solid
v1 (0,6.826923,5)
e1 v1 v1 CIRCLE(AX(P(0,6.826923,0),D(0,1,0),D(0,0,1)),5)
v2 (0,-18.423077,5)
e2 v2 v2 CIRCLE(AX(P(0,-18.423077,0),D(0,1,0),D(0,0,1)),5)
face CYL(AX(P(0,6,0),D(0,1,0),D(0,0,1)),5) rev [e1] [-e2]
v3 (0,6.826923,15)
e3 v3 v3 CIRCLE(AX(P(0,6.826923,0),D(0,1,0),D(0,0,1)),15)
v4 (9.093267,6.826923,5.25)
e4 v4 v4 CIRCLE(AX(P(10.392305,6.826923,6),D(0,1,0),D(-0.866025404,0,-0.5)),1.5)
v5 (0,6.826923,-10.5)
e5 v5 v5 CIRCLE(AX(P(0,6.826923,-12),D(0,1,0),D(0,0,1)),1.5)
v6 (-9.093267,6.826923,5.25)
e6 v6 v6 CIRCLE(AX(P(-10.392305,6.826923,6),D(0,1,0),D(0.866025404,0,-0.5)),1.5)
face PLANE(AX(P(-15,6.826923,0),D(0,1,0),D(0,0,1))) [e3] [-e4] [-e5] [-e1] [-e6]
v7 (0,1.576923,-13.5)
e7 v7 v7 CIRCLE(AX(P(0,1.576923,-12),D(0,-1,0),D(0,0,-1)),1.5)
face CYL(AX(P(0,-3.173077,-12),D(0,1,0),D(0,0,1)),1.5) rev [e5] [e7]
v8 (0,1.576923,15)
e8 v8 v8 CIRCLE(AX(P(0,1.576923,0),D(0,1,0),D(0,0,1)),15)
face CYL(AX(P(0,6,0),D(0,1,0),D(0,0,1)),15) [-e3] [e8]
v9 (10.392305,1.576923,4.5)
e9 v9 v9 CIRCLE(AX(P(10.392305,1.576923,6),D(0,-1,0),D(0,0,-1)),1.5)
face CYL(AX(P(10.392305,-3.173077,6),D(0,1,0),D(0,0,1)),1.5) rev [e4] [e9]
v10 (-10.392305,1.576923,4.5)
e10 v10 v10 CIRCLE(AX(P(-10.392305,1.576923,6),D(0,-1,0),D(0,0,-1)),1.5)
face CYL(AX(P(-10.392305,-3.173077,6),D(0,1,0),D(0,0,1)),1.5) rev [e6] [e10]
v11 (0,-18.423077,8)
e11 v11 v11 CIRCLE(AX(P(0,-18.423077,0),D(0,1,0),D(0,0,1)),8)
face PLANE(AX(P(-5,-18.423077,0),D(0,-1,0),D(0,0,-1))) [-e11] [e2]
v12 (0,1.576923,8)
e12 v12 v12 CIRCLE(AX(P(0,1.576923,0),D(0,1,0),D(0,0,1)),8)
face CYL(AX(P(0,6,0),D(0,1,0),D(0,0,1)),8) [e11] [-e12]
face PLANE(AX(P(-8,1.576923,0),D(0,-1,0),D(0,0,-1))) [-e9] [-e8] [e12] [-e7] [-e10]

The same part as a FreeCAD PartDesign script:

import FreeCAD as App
import Part
import Sketcher
from FreeCAD import Vector
Q = App.Units.Quantity

doc = App.newDocument("Part")
body = doc.addObject("PartDesign::Body", "Body")

# Sketch on XY plane
sketch1 = doc.addObject("Sketcher::SketchObject", "Sketch")
body.addObject(sketch1)
sketch1.AttachmentSupport = (doc.XY_Plane, [""])
sketch1.MapMode = "FlatFace"
sketch1.addGeometry([
    Part.LineSegment(Vector(-5, -18.4, 0), Vector(-5, 6.8, 0)),  # 0
    Part.LineSegment(Vector(-5, 6.8, 0), Vector(-15, 6.8, 0)),  # 1
    Part.LineSegment(Vector(-15, 6.8, 0), Vector(-15, 1.6, 0)),  # 2
    Part.LineSegment(Vector(-15, 1.6, 0), Vector(-8, 1.6, 0)),  # 3
    Part.LineSegment(Vector(-8, 1.6, 0), Vector(-8, -18.4, 0)),  # 4
    Part.LineSegment(Vector(-8, -18.4, 0), Vector(-5, -18.4, 0)),  # 5
], False)
sketch1.addConstraint([
    Sketcher.Constraint("Coincident", 0, 2, 1, 1),
    Sketcher.Constraint("Coincident", 1, 2, 2, 1),
    Sketcher.Constraint("Coincident", 2, 2, 3, 1),
    Sketcher.Constraint("Coincident", 3, 2, 4, 1),
    Sketcher.Constraint("Coincident", 4, 2, 5, 1),
    Sketcher.Constraint("Coincident", 5, 2, 0, 1),
    Sketcher.Constraint("Vertical", 0),
    Sketcher.Constraint("Horizontal", 1),
    Sketcher.Constraint("Vertical", 2),
    Sketcher.Constraint("Horizontal", 3),
    Sketcher.Constraint("Vertical", 4),
    Sketcher.Constraint("Horizontal", 5),
    Sketcher.Constraint("DistanceX", 1, 2, 1, 1, Q("10 mm")),
    Sketcher.Constraint("DistanceX", 3, 1, 3, 2, Q("7 mm")),
    Sketcher.Constraint("DistanceY", 4, 2, 4, 1, Q("20 mm")),
    Sketcher.Constraint("DistanceX", 0, 2, -1, 1, Q("5 mm")),
    Sketcher.Constraint("DistanceY", 0, 1, 0, 2, Q("25.25 mm")),
    Sketcher.Constraint("DistanceY", -1, 1, 0, 2, Q("6.826923 mm")),
])
revolution = doc.addObject("PartDesign::Revolution", "Revolution")
body.addObject(revolution)
revolution.Profile = sketch1
revolution.ReferenceAxis = (sketch1, ["V_Axis"])
revolution.Angle = 360

# Sketch on XZ plane
sketch2 = doc.addObject("Sketcher::SketchObject", "Sketch001")
body.addObject(sketch2)
sketch2.AttachmentSupport = (doc.XZ_Plane, [""])
sketch2.MapMode = "FlatFace"
sketch2.AttachmentOffset = App.Placement(Vector(0, 0, -6.826923), App.Rotation())
sketch2.addGeometry(Part.Circle(Vector(0, -12, 0), Vector(0, 0, 1), 1.5), False)
sketch2.addConstraint([
    Sketcher.Constraint("PointOnObject", 0, 3, -2),
    Sketcher.Constraint("Diameter", 0, Q("3 mm")),
    Sketcher.Constraint("DistanceY", 0, 3, -1, 1, Q("12 mm")),
])
pocket1 = doc.addObject("PartDesign::Pocket", "Pocket")
body.addObject(pocket1)
pocket1.Profile = sketch2
pocket1.Length = 10
pocket1.Reversed = True
doc.recompute()

polarpattern = doc.addObject("PartDesign::PolarPattern", "PolarPattern")
body.addObject(polarpattern)
polarpattern.Originals = [pocket1]
polarpattern.Axis = (doc.Y_Axis, [""])
polarpattern.Angle = 360
polarpattern.Occurrences = 3
body.Tip = polarpattern

doc.recompute()
